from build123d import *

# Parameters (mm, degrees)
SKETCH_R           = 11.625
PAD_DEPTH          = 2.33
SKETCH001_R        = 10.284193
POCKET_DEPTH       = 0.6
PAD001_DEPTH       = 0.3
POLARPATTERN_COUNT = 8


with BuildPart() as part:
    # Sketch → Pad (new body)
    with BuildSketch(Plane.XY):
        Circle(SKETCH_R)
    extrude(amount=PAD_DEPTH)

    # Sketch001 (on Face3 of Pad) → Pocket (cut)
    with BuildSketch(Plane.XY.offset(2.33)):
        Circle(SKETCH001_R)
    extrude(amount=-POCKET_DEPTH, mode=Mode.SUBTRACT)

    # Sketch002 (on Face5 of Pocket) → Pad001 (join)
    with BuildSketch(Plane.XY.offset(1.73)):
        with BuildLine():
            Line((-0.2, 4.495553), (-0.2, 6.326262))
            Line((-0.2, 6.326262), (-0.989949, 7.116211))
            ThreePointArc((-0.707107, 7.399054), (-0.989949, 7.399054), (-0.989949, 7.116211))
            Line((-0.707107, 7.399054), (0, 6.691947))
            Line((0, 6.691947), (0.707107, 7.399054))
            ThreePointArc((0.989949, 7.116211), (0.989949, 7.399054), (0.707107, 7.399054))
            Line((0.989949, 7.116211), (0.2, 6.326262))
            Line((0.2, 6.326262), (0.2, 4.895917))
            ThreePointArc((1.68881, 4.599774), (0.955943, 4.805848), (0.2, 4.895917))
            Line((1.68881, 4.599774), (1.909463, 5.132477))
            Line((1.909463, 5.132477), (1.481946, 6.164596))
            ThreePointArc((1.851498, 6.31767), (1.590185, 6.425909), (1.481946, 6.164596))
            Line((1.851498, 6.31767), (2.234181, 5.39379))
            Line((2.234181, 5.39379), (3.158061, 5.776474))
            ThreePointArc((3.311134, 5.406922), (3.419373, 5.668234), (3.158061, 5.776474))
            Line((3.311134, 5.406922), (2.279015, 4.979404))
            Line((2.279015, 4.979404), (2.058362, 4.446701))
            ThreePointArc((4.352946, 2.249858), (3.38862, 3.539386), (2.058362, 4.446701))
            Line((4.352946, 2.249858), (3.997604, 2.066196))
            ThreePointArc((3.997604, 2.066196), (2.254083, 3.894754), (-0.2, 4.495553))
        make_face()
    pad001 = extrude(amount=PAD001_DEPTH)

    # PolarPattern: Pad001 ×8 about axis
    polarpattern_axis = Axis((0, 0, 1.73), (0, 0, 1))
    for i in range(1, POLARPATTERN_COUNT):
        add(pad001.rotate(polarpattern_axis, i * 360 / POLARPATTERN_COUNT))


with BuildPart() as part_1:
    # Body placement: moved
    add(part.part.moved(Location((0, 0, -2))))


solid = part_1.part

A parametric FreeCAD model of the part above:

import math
import FreeCAD as App
import Part
import Sketcher

V = App.Vector
Q = App.Units.Quantity

doc = App.newDocument("Part")
body = doc.addObject("PartDesign::Body", "Body")

sketch1 = body.newObject("Sketcher::SketchObject", "Sketch")
sketch1.AttachmentSupport = (doc.getObject("XY_Plane"), [""])
sketch1.MapMode = "FlatFace"
sketch1.addGeometry(Part.Circle(V(0, 0, 0), V(0, 0, 1), 12), False)
sketch1.addConstraint(Sketcher.Constraint("Coincident", 0, 3, -1, 1))
sketch1.addConstraint(Sketcher.Constraint("Diameter", 0, Q("23.25 mm")))
pad1 = body.newObject("PartDesign::Pad", "Pad")
pad1.Profile = sketch1
pad1.Length = 2.33

sketch2 = body.newObject("Sketcher::SketchObject", "Sketch001")
sketch2.AttachmentSupport = (doc.getObject("XY_Plane"), [""])
sketch2.MapMode = "FlatFace"
sketch2.AttachmentOffset = App.Placement(V(0, 0, 2.33), App.Rotation())
sketch2.addGeometry(Part.Circle(V(0, 0, 0), V(0, 0, 1), 10), False)
sketch2.addConstraint(Sketcher.Constraint("Coincident", 0, 3, -1, 1))
sketch2.addConstraint(Sketcher.Constraint("Diameter", 0, Q("20.568386 mm")))
pocket1 = body.newObject("PartDesign::Pocket", "Pocket")
pocket1.Profile = sketch2
pocket1.Length = 0.6

sketch3 = body.newObject("Sketcher::SketchObject", "Sketch002")
sketch3.AttachmentSupport = (doc.getObject("XY_Plane"), [""])
sketch3.MapMode = "FlatFace"
sketch3.AttachmentOffset = App.Placement(V(0, 0, 1.73), App.Rotation())
sketch3.addGeometry(Part.LineSegment(V(-0.2, 6.33, 0), V(-0.2, 4.5, 0)), False)
sketch3.addGeometry(Part.ArcOfCircle(Part.Circle(V(0, 0, 0), V(0, 0, 1), 4.5), math.radians(27), math.radians(93)), False)
sketch3.addGeometry(Part.LineSegment(V(4, 2.07, 0), V(4.35, 2.25, 0)), False)
sketch3.addGeometry(Part.ArcOfCircle(Part.Circle(V(0, 0, 0), V(0, 0, 1), 4.9), math.radians(27), math.radians(65)), False)
sketch3.addGeometry(Part.LineSegment(V(2.06, 4.45, 0), V(2.28, 4.98, 0)), False)
sketch3.addGeometry(Part.LineSegment(V(2.28, 4.98, 0), V(3.31, 5.41, 0)), False)
sketch3.addGeometry(Part.ArcOfCircle(Part.Circle(V(3.23, 5.59, 0), V(0, 0, 1), 0.2), math.radians(-67), math.radians(112)), False)
sketch3.addGeometry(Part.LineSegment(V(3.16, 5.78, 0), V(2.23, 5.39, 0)), False)
sketch3.addGeometry(Part.LineSegment(V(2.23, 5.39, 0), V(1.85, 6.32, 0)), False)
sketch3.addGeometry(Part.ArcOfCircle(Part.Circle(V(1.67, 6.24, 0), V(0, 0, 1), 0.2), math.radians(23), math.radians(203)), False)
sketch3.addGeometry(Part.LineSegment(V(1.48, 6.16, 0), V(1.91, 5.13, 0)), False)
sketch3.addGeometry(Part.LineSegment(V(1.91, 5.13, 0), V(1.69, 4.6, 0)), False)
sketch3.addGeometry(Part.ArcOfCircle(Part.Circle(V(0, 0, 0), V(0, 0, 1), 4.9), math.radians(69.84), math.radians(87.66)), False)
sketch3.addGeometry(Part.LineSegment(V(0.2, 4.9, 0), V(0.2, 6.33, 0)), False)
sketch3.addGeometry(Part.LineSegment(V(0.2, 6.33, 0), V(0.99, 7.12, 0)), False)
sketch3.addGeometry(Part.ArcOfCircle(Part.Circle(V(0.85, 7.26, 0), V(0, 0, 1), 0.2), math.radians(-45), math.radians(135)), False)
sketch3.addGeometry(Part.LineSegment(V(0.71, 7.4, 0), V(0, 6.69, 0)), False)
sketch3.addGeometry(Part.LineSegment(V(0, 6.69, 0), V(-0.71, 7.4, 0)), False)
sketch3.addGeometry(Part.ArcOfCircle(Part.Circle(V(-0.85, 7.26, 0), V(0, 0, 1), 0.2), math.radians(45), math.radians(225)), False)
sketch3.addGeometry(Part.LineSegment(V(-0.99, 7.12, 0), V(-0.2, 6.33, 0)), False)
sketch3.addConstraint(Sketcher.Constraint("Coincident", 0, 2, 1, 2))
sketch3.addConstraint(Sketcher.Constraint("Coincident", 1, 1, 2, 1))
sketch3.addConstraint(Sketcher.Constraint("Coincident", 2, 2, 3, 1))
sketch3.addConstraint(Sketcher.Constraint("Coincident", 3, 2, 4, 1))
sketch3.addConstraint(Sketcher.Constraint("Coincident", 4, 2, 5, 1))
sketch3.addConstraint(Sketcher.Constraint("Tangent", 5, 2, 6, 1))
sketch3.addConstraint(Sketcher.Constraint("Coincident", 6, 2, 7, 1))
sketch3.addConstraint(Sketcher.Constraint("Coincident", 7, 2, 8, 1))
sketch3.addConstraint(Sketcher.Constraint("Tangent", 8, 2, 9, 1))
sketch3.addConstraint(Sketcher.Constraint("Tangent", 9, 2, 10, 1))
sketch3.addConstraint(Sketcher.Constraint("Coincident", 10, 2, 11, 1))
sketch3.addConstraint(Sketcher.Constraint("Coincident", 11, 2, 12, 1))
sketch3.addConstraint(Sketcher.Constraint("Coincident", 12, 2, 13, 1))
sketch3.addConstraint(Sketcher.Constraint("Coincident", 13, 2, 14, 1))
sketch3.addConstraint(Sketcher.Constraint("Tangent", 14, 2, 15, 1))
sketch3.addConstraint(Sketcher.Constraint("Tangent", 15, 2, 16, 1))
sketch3.addConstraint(Sketcher.Constraint("Coincident", 16, 2, 17, 1))
sketch3.addConstraint(Sketcher.Constraint("Tangent", 17, 2, 18, 1))
sketch3.addConstraint(Sketcher.Constraint("Tangent", 18, 2, 19, 1))
sketch3.addConstraint(Sketcher.Constraint("Coincident", 19, 2, 0, 1))
sketch3.addConstraint(Sketcher.Constraint("Vertical", 0))
sketch3.addConstraint(Sketcher.Constraint("Vertical", 13))
sketch3.addConstraint(Sketcher.Constraint("Coincident", 1, 3, -1, 1))
sketch3.addConstraint(Sketcher.Constraint("Coincident", 3, 3, -1, 1))
sketch3.addConstraint(Sketcher.Constraint("Coincident", 12, 3, -1, 1))
sketch3.addConstraint(Sketcher.Constraint("Equal", 6, 9))
sketch3.addConstraint(Sketcher.Constraint("Equal", 9, 15))
sketch3.addConstraint(Sketcher.Constraint("Equal", 15, 18))
sketch3.addConstraint(Sketcher.Constraint("Symmetric", 15, 3, 18, 3, -2))
sketch3.addConstraint(Sketcher.Constraint("Symmetric", 13, 2, 19, 2, -2))
sketch3.addConstraint(Sketcher.Constraint("PointOnObject", 16, 2, -2))
sketch3.addConstraint(Sketcher.Constraint("Parallel", 5, 7))
sketch3.addConstraint(Sketcher.Constraint("Perpendicular", 7, 8))
sketch3.addConstraint(Sketcher.Constraint("Parallel", 8, 10))
sketch3.addConstraint(Sketcher.Constraint("Parallel", 4, 11))
sketch3.addConstraint(Sketcher.Constraint("Parallel", 14, 16))
sketch3.addConstraint(Sketcher.Constraint("Perpendicular", 16, 17))
sketch3.addConstraint(Sketcher.Constraint("Equal", 7, 8))
sketch3.addConstraint(Sketcher.Constraint("Equal", 5, 10))
sketch3.addConstraint(Sketcher.Constraint("Equal", 4, 11))
sketch3.addConstraint(Sketcher.Constraint("Equal", 10, 14))
sketch3.addConstraint(Sketcher.Constraint("Equal", 8, 16))
sketch3.addConstraint(Sketcher.Constraint("Radius", 1, Q("4.500001 mm")))
sketch3.addConstraint(Sketcher.Constraint("Radius", 6, Q("0.2 mm")))
sketch3.addConstraint(Sketcher.Constraint("Distance", 7, Q("1.000001 mm")))
sketch3.addConstraint(Sketcher.Constraint("Angle", 4, Q("67.499982 deg")))
sketch3.addConstraint(Sketcher.Constraint("Angle", 5, Q("22.500015 deg")))
sketch3.addConstraint(Sketcher.Constraint("Distance", 2, Q("0.4 mm")))
sketch3.addConstraint(Sketcher.Constraint("DistanceX", 0, 2, -1, 1, Q("0.2 mm")))
sketch3.addConstraint(Sketcher.Constraint("Radius", 12, Q("4.899997 mm")))
sketch3.addConstraint(Sketcher.Constraint("DistanceY", 0, 2, 0, 1, Q("1.830709 mm")))
sketch3.addConstraint(Sketcher.Constraint("DistanceY", -1, 1, 3, 2, Q("4.446701 mm")))
sketch3.addConstraint(Sketcher.Constraint("DistanceX", -1, 1, 8, 2, Q("1.851498 mm")))
sketch3.addConstraint(Sketcher.Constraint("DistanceY", 1, 1, 6, 3, Q("3.525502 mm")))
sketch3.addConstraint(Sketcher.Constraint("DistanceY", -1, 1, 2, 2, Q("2.249858 mm")))
pad2 = body.newObject("PartDesign::Pad", "Pad001")
pad2.Profile = sketch3
pad2.Length = 0.3
doc.recompute()

polarpattern = body.newObject("PartDesign::PolarPattern", "PolarPattern")
polarpattern.Originals = [pad2]
polarpattern.Axis = (doc.getObject("Z_Axis"), [""])
polarpattern.Angle = 360
polarpattern.Occurrences = 8
body.Tip = polarpattern
body2 = doc.addObject("PartDesign::Body", "Body001")
doc.recompute()

body.Placement = App.Placement(V(0, 0, -2), App.Rotation(V(0, 0, 1), 0))
boolean = body2.newObject("PartDesign::Boolean", "Boolean")
boolean.Type = "Fuse"
boolean.addObjects([body])

doc.recompute()
